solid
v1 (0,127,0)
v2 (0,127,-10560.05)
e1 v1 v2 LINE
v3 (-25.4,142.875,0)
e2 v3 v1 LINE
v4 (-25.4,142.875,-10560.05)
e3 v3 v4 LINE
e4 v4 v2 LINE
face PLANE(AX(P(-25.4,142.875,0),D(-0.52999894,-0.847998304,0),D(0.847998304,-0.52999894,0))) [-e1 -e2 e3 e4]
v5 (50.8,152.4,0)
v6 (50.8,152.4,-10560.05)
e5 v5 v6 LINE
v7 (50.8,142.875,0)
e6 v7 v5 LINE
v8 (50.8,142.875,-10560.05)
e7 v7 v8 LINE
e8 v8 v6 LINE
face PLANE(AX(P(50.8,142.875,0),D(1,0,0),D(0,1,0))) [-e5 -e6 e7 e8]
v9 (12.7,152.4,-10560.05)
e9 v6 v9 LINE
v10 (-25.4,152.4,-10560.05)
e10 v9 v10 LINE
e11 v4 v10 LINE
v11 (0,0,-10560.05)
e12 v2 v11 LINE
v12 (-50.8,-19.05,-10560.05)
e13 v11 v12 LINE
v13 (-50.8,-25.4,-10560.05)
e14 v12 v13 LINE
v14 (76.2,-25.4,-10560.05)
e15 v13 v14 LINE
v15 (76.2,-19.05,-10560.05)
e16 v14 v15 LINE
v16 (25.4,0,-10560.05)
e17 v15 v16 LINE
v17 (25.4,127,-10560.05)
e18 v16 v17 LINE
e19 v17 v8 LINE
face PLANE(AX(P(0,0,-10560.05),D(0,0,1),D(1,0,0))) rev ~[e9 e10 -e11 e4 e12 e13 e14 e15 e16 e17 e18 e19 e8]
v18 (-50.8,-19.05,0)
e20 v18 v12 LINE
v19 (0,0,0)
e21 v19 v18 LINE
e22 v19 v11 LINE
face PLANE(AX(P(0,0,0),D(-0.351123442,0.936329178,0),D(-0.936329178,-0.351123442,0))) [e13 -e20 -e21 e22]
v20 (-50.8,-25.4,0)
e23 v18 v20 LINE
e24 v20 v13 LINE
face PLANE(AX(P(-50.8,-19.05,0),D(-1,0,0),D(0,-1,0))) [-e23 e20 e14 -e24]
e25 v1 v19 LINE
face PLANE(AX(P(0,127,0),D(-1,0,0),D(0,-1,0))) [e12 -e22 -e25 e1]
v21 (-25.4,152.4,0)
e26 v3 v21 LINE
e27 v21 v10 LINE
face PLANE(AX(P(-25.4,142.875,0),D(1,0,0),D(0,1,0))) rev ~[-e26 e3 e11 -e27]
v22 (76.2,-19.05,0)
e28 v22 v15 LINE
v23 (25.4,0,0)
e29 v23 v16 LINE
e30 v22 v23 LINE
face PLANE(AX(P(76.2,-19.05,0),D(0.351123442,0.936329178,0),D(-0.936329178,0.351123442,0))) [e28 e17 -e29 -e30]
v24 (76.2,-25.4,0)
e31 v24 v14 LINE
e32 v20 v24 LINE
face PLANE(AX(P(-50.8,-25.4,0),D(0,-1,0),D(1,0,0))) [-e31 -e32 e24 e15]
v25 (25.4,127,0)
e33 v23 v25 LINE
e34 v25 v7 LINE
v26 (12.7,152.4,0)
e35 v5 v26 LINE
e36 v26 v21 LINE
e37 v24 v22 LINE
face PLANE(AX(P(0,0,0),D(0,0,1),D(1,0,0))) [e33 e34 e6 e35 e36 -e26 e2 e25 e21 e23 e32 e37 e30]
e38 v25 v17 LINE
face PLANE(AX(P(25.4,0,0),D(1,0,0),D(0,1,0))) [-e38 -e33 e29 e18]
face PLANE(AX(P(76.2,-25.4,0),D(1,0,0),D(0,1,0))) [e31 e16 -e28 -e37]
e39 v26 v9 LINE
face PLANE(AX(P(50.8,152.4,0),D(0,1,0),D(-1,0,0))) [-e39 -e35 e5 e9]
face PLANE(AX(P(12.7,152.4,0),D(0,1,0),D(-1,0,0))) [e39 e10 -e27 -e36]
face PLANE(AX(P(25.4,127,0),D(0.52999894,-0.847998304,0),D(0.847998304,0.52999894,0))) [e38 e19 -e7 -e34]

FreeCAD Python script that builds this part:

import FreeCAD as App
import Part
import Sketcher
Q = App.Units.Quantity


def add_polygon(sketch, points):
    """Adds a closed chain of lines whose ends are joined by coincident constraints."""
    first, n = sketch.GeometryCount, len(points)
    for a, b in zip(points, points[1:] + points[:1]):
        sketch.addGeometry(Part.LineSegment(App.Vector(*a, 0), App.Vector(*b, 0)), False)
    for i in range(n):
        sketch.addConstraint(Sketcher.Constraint("Coincident", first + i, 2, first + (i + 1) % n, 1))

doc = App.newDocument("Part")
body = doc.addObject("PartDesign::Body", "Body")

# Sketch on XY plane
sketch1 = doc.addObject("Sketcher::SketchObject", "Sketch")
body.addObject(sketch1)
sketch1.AttachmentSupport = (doc.XY_Plane, [""])
sketch1.MapMode = "FlatFace"
add_polygon(sketch1, [(0, 127), (0, 0), (-51, -19), (-51, -25), (76, -25), (76, -19), (25, 0), (25, 127), (51, 143), (51, 152), (-25, 152), (-25, 143)])  # lines 0-11
sketch1.addConstraint(Sketcher.Constraint("Vertical", 0))
sketch1.addConstraint(Sketcher.Constraint("Vertical", 2))
sketch1.addConstraint(Sketcher.Constraint("Horizontal", 3))
sketch1.addConstraint(Sketcher.Constraint("Vertical", 4))
sketch1.addConstraint(Sketcher.Constraint("Vertical", 6))
sketch1.addConstraint(Sketcher.Constraint("Vertical", 8))
sketch1.addConstraint(Sketcher.Constraint("Horizontal", 9))
sketch1.addConstraint(Sketcher.Constraint("Vertical", 10))
sketch1.addConstraint(Sketcher.Constraint("Coincident", 0, 2, -1, 1))
sketch1.addConstraint(Sketcher.Constraint("PointOnObject", 5, 2, -1))
sketch1.addConstraint(Sketcher.Constraint("Horizontal", 1, 2, 4, 2))
sketch1.addConstraint(Sketcher.Constraint("Horizontal", 7, 2, 10, 2))
sketch1.addConstraint(Sketcher.Constraint("Horizontal", 6, 2, 11, 2))
sketch1.addConstraint(Sketcher.Constraint("Equal", 3, 0))
sketch1.addConstraint(Sketcher.Constraint("Equal", 1, 5))
sketch1.addConstraint(Sketcher.Constraint("Equal", 7, 11))
sketch1.addConstraint(Sketcher.Constraint("DistanceX", 3, 1, 3, 2, Q("5 in")))
sketch1.addConstraint(Sketcher.Constraint("DistanceX", 1, 2, -1, 1, Q("2 in")))
sketch1.addConstraint(Sketcher.Constraint("DistanceY", 2, 2, -1, 1, Q("1 in")))
sketch1.addConstraint(Sketcher.Constraint("DistanceX", -1, 1, 7, 2, Q("2 in")))
sketch1.addConstraint(Sketcher.Constraint("DistanceY", 6, 2, 8, 2, Q("1 in")))
sketch1.addConstraint(Sketcher.Constraint("DistanceY", 2, 2, 2, 1, Q("0.25 in")))
sketch1.addConstraint(Sketcher.Constraint("DistanceY", 6, 2, 7, 2, Q("0.625 in")))
pad1 = doc.addObject("PartDesign::Pad", "Pad")
body.addObject(pad1)
pad1.Profile = sketch1
pad1.Length = Q("415.75 in")
pad1.Reversed = True

doc.recompute()
